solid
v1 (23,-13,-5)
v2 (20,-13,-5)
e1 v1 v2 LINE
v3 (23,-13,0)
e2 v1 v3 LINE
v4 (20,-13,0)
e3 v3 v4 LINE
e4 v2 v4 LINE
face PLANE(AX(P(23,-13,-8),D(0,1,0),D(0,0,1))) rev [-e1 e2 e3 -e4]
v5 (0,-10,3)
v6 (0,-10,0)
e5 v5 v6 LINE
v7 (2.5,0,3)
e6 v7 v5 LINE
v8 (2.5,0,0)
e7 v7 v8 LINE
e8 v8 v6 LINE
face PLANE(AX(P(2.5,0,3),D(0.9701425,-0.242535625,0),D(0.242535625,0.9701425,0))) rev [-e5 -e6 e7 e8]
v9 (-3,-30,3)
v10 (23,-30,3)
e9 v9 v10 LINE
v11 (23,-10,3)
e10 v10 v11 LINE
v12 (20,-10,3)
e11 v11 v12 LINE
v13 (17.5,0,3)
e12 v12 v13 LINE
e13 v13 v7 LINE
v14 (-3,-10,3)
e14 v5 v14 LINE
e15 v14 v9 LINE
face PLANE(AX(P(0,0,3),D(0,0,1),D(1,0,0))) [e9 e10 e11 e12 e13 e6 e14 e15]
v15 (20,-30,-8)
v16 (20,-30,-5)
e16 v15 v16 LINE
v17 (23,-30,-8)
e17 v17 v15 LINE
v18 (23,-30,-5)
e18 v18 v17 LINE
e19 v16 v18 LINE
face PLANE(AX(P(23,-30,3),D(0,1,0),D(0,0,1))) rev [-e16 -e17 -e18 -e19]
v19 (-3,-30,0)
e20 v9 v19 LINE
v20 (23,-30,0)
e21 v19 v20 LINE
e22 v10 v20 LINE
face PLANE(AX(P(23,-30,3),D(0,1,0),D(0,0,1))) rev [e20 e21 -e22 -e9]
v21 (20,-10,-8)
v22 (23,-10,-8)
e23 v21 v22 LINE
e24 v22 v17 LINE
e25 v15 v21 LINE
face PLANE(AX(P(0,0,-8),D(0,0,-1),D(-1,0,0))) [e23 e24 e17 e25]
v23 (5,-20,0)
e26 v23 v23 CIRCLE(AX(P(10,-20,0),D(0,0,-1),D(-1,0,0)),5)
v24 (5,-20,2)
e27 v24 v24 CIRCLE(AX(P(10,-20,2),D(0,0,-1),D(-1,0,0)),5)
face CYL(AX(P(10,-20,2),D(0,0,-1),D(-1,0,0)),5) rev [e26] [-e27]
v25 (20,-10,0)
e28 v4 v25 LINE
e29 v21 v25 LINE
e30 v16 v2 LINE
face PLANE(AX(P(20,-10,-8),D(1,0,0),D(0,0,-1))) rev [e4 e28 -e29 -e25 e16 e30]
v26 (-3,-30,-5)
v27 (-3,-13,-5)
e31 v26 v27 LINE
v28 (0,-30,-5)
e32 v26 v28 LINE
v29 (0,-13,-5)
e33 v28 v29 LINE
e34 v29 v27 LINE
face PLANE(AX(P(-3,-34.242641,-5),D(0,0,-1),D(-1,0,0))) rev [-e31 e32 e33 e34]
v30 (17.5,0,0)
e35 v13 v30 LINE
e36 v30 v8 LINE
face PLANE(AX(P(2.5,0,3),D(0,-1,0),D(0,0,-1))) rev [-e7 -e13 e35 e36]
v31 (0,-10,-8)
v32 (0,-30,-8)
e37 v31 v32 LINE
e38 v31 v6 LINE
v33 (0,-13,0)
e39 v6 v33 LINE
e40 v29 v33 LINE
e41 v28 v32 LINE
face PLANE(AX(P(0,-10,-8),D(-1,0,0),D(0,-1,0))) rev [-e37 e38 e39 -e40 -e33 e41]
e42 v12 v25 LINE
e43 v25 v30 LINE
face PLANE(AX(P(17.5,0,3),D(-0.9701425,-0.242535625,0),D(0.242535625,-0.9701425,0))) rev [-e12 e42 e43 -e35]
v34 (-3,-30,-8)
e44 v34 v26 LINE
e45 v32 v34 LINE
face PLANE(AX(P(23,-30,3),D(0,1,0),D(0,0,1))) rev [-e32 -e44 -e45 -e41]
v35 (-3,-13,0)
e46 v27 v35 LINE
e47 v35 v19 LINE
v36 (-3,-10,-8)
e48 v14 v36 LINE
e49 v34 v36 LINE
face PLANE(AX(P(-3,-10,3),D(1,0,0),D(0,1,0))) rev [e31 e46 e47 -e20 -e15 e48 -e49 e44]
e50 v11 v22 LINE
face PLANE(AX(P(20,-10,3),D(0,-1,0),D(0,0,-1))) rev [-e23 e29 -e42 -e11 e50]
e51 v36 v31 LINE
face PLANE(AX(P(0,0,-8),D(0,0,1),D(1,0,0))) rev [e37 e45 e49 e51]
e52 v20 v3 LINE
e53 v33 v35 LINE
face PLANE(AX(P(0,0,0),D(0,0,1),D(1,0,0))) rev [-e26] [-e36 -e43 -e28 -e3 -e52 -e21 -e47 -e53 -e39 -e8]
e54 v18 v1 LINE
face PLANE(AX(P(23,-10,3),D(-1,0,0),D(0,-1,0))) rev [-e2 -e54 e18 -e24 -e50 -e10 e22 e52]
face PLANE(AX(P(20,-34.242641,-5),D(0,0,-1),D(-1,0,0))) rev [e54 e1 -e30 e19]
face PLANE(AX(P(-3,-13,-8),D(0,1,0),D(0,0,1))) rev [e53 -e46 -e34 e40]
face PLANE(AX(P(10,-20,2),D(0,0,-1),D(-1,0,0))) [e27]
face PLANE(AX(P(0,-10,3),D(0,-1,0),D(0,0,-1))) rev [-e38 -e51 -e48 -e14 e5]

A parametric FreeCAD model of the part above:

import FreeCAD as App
import Part
import Sketcher
from FreeCAD import Vector
Q = App.Units.Quantity

doc = App.newDocument("Part")
body = doc.addObject("PartDesign::Body", "Body")

# Sketch on XY plane
sketch1 = doc.addObject("Sketcher::SketchObject", "Sketch")
body.addObject(sketch1)
sketch1.AttachmentSupport = (doc.XY_Plane, [""])
sketch1.MapMode = "FlatFace"
sketch1.addGeometry(Part.LineSegment(Vector(2.5, 0, 0), Vector(0, -10, 0)), False)
sketch1.addGeometry(Part.LineSegment(Vector(0, -10, 0), Vector(-3, -10, 0)), False)
sketch1.addGeometry(Part.LineSegment(Vector(-3, -10, 0), Vector(-3, -30, 0)), False)
sketch1.addGeometry(Part.LineSegment(Vector(-3, -30, 0), Vector(23, -30, 0)), False)
sketch1.addGeometry(Part.LineSegment(Vector(23, -30, 0), Vector(23, -10, 0)), False)
sketch1.addGeometry(Part.LineSegment(Vector(23, -10, 0), Vector(20, -10, 0)), False)
sketch1.addGeometry(Part.LineSegment(Vector(20, -10, 0), Vector(17.5, 0, 0)), False)
sketch1.addGeometry(Part.LineSegment(Vector(17.5, 0, 0), Vector(2.5, 0, 0)), False)
sketch1.addConstraint(Sketcher.Constraint("Coincident", 0, 2, 1, 1))
sketch1.addConstraint(Sketcher.Constraint("Coincident", 1, 2, 2, 1))
sketch1.addConstraint(Sketcher.Constraint("Coincident", 2, 2, 3, 1))
sketch1.addConstraint(Sketcher.Constraint("Coincident", 3, 2, 4, 1))
sketch1.addConstraint(Sketcher.Constraint("Coincident", 4, 2, 5, 1))
sketch1.addConstraint(Sketcher.Constraint("Coincident", 5, 2, 6, 1))
sketch1.addConstraint(Sketcher.Constraint("Coincident", 6, 2, 7, 1))
sketch1.addConstraint(Sketcher.Constraint("Coincident", 7, 2, 0, 1))
sketch1.addConstraint(Sketcher.Constraint("Horizontal", 1))
sketch1.addConstraint(Sketcher.Constraint("Vertical", 2))
sketch1.addConstraint(Sketcher.Constraint("Horizontal", 3))
sketch1.addConstraint(Sketcher.Constraint("Vertical", 4))
sketch1.addConstraint(Sketcher.Constraint("Horizontal", 5))
sketch1.addConstraint(Sketcher.Constraint("Horizontal", 7))
sketch1.addConstraint(Sketcher.Constraint("PointOnObject", 0, 2, -2))
sketch1.addConstraint(Sketcher.Constraint("PointOnObject", 6, 2, -1))
sketch1.addConstraint(Sketcher.Constraint("Horizontal", 1, 2, 4, 2))
sketch1.addConstraint(Sketcher.Constraint("Equal", 1, 5))
sketch1.addConstraint(Sketcher.Constraint("Equal", 0, 6))
sketch1.addConstraint(Sketcher.Constraint("DistanceX", 1, 2, 1, 1, Q("3 mm")))
sketch1.addConstraint(Sketcher.Constraint("DistanceX", 3, 1, 3, 2, Q("26 mm")))
sketch1.addConstraint(Sketcher.Constraint("DistanceX", 7, 2, 7, 1, Q("15 mm")))
sketch1.addConstraint(Sketcher.Constraint("DistanceY", 2, 2, 2, 1, Q("20 mm")))
sketch1.addConstraint(Sketcher.Constraint("DistanceY", 0, 2, -1, 1, Q("10 mm")))
pad1 = doc.addObject("PartDesign::Pad", "Pad")
body.addObject(pad1)
pad1.Profile = sketch1
pad1.Length = 3

# Sketch on XY plane
sketch2 = doc.addObject("Sketcher::SketchObject", "Sketch001")
body.addObject(sketch2)
sketch2.AttachmentSupport = (doc.XY_Plane, [""])
sketch2.MapMode = "FlatFace"
sketch2.addGeometry(Part.LineSegment(Vector(23, -10, 0), Vector(23, -13, 0)), False)
sketch2.addGeometry(Part.LineSegment(Vector(23, -13, 0), Vector(20, -13, 0)), False)
sketch2.addGeometry(Part.LineSegment(Vector(20, -13, 0), Vector(20, -10, 0)), False)
sketch2.addGeometry(Part.LineSegment(Vector(20, -10, 0), Vector(23, -10, 0)), False)
sketch2.addGeometry(Part.LineSegment(Vector(0, -10, 0), Vector(0, -13, 0)), False)
sketch2.addGeometry(Part.LineSegment(Vector(0, -13, 0), Vector(-3, -13, 0)), False)
sketch2.addGeometry(Part.LineSegment(Vector(-3, -13, 0), Vector(-3, -10, 0)), False)
sketch2.addGeometry(Part.LineSegment(Vector(-3, -10, 0), Vector(0, -10, 0)), False)
sketch2.addConstraint(Sketcher.Constraint("Coincident", 0, 2, 1, 1))
sketch2.addConstraint(Sketcher.Constraint("Coincident", 1, 2, 2, 1))
sketch2.addConstraint(Sketcher.Constraint("Coincident", 2, 2, 3, 1))
sketch2.addConstraint(Sketcher.Constraint("Coincident", 3, 2, 0, 1))
sketch2.addConstraint(Sketcher.Constraint("Coincident", 4, 2, 5, 1))
sketch2.addConstraint(Sketcher.Constraint("Coincident", 5, 2, 6, 1))
sketch2.addConstraint(Sketcher.Constraint("Coincident", 6, 2, 7, 1))
sketch2.addConstraint(Sketcher.Constraint("Coincident", 7, 2, 4, 1))
sketch2.addConstraint(Sketcher.Constraint("Vertical", 0))
sketch2.addConstraint(Sketcher.Constraint("Horizontal", 1))
sketch2.addConstraint(Sketcher.Constraint("Vertical", 2))
sketch2.addConstraint(Sketcher.Constraint("Horizontal", 3))
sketch2.addConstraint(Sketcher.Constraint("Vertical", 4))
sketch2.addConstraint(Sketcher.Constraint("Horizontal", 5))
sketch2.addConstraint(Sketcher.Constraint("Vertical", 6))
sketch2.addConstraint(Sketcher.Constraint("Horizontal", 7))
sketch2.addConstraint(Sketcher.Constraint("PointOnObject", 4, 2, -2))
sketch2.addConstraint(Sketcher.Constraint("Horizontal", 1, 2, 4, 2))
sketch2.addConstraint(Sketcher.Constraint("Horizontal", 3, 2, 6, 2))
sketch2.addConstraint(Sketcher.Constraint("Equal", 3, 5))
sketch2.addConstraint(Sketcher.Constraint("Equal", 7, 0))
sketch2.addConstraint(Sketcher.Constraint("DistanceX", 1, 2, 1, 1, Q("3 mm")))
sketch2.addConstraint(Sketcher.Constraint("DistanceX", -1, 1, 0, 2, Q("23 mm")))
sketch2.addConstraint(Sketcher.Constraint("DistanceY", 0, 2, -1, 1, Q("13 mm")))
pad2 = doc.addObject("PartDesign::Pad", "Pad001")
body.addObject(pad2)
pad2.Profile = sketch2
pad2.Length = 8
pad2.Reversed = True

# Sketch on XZ plane
sketch3 = doc.addObject("Sketcher::SketchObject", "Sketch002")
body.addObject(sketch3)
sketch3.AttachmentSupport = (doc.XZ_Plane, [""])
sketch3.MapMode = "FlatFace"
sketch3.AttachmentOffset = App.Placement(Vector(0, 0, 13), App.Rotation())
sketch3.addGeometry(Part.LineSegment(Vector(-3, -5, 0), Vector(-3, -8, 0)), False)
sketch3.addGeometry(Part.LineSegment(Vector(-3, -8, 0), Vector(0, -8, 0)), False)
sketch3.addGeometry(Part.LineSegment(Vector(0, -8, 0), Vector(0, -5, 0)), False)
sketch3.addGeometry(Part.LineSegment(Vector(0, -5, 0), Vector(-3, -5, 0)), False)
sketch3.addGeometry(Part.LineSegment(Vector(20, -5, 0), Vector(20, -8, 0)), False)
sketch3.addGeometry(Part.LineSegment(Vector(20, -8, 0), Vector(23, -8, 0)), False)
sketch3.addGeometry(Part.LineSegment(Vector(23, -8, 0), Vector(23, -5, 0)), False)
sketch3.addGeometry(Part.LineSegment(Vector(23, -5, 0), Vector(20, -5, 0)), False)
sketch3.addConstraint(Sketcher.Constraint("Coincident", 0, 2, 1, 1))
sketch3.addConstraint(Sketcher.Constraint("Coincident", 1, 2, 2, 1))
sketch3.addConstraint(Sketcher.Constraint("Coincident", 2, 2, 3, 1))
sketch3.addConstraint(Sketcher.Constraint("Coincident", 3, 2, 0, 1))
sketch3.addConstraint(Sketcher.Constraint("Coincident", 4, 2, 5, 1))
sketch3.addConstraint(Sketcher.Constraint("Coincident", 5, 2, 6, 1))
sketch3.addConstraint(Sketcher.Constraint("Coincident", 6, 2, 7, 1))
sketch3.addConstraint(Sketcher.Constraint("Coincident", 7, 2, 4, 1))
sketch3.addConstraint(Sketcher.Constraint("Vertical", 0))
sketch3.addConstraint(Sketcher.Constraint("Horizontal", 1))
sketch3.addConstraint(Sketcher.Constraint("Vertical", 2))
sketch3.addConstraint(Sketcher.Constraint("Horizontal", 3))
sketch3.addConstraint(Sketcher.Constraint("Vertical", 4))
sketch3.addConstraint(Sketcher.Constraint("Horizontal", 5))
sketch3.addConstraint(Sketcher.Constraint("Vertical", 6))
sketch3.addConstraint(Sketcher.Constraint("Horizontal", 7))
sketch3.addConstraint(Sketcher.Constraint("PointOnObject", 1, 2, -2))
sketch3.addConstraint(Sketcher.Constraint("Horizontal", 1, 2, 4, 2))
sketch3.addConstraint(Sketcher.Constraint("Horizontal", 3, 2, 6, 2))
sketch3.addConstraint(Sketcher.Constraint("Equal", 3, 5))
sketch3.addConstraint(Sketcher.Constraint("Equal", 7, 0))
sketch3.addConstraint(Sketcher.Constraint("DistanceX", 1, 1, 1, 2, Q("3 mm")))
sketch3.addConstraint(Sketcher.Constraint("DistanceY", 0, 2, -1, 1, Q("8 mm")))
sketch3.addConstraint(Sketcher.Constraint("DistanceX", -1, 1, 4, 2, Q("20 mm")))
pad3 = doc.addObject("PartDesign::Pad", "Pad002")
body.addObject(pad3)
pad3.Profile = sketch3
pad3.Length = 17

# Sketch on XY plane
sketch4 = doc.addObject("Sketcher::SketchObject", "Sketch003")
body.addObject(sketch4)
sketch4.AttachmentSupport = (doc.XY_Plane, [""])
sketch4.MapMode = "FlatFace"
sketch4.addGeometry(Part.Circle(Vector(10, -20, 0), Vector(0, 0, 1), 5), False)
sketch4.addConstraint(Sketcher.Constraint("Diameter", 0, Q("10 mm")))
sketch4.addConstraint(Sketcher.Constraint("DistanceX", -1, 1, 0, 3, Q("10 mm")))
sketch4.addConstraint(Sketcher.Constraint("DistanceY", 0, 3, -1, 1, Q("20 mm")))
pocket1 = doc.addObject("PartDesign::Pocket", "Pocket")
body.addObject(pocket1)
pocket1.Profile = sketch4
pocket1.Length = 2
pocket1.Reversed = True

doc.recompute()
